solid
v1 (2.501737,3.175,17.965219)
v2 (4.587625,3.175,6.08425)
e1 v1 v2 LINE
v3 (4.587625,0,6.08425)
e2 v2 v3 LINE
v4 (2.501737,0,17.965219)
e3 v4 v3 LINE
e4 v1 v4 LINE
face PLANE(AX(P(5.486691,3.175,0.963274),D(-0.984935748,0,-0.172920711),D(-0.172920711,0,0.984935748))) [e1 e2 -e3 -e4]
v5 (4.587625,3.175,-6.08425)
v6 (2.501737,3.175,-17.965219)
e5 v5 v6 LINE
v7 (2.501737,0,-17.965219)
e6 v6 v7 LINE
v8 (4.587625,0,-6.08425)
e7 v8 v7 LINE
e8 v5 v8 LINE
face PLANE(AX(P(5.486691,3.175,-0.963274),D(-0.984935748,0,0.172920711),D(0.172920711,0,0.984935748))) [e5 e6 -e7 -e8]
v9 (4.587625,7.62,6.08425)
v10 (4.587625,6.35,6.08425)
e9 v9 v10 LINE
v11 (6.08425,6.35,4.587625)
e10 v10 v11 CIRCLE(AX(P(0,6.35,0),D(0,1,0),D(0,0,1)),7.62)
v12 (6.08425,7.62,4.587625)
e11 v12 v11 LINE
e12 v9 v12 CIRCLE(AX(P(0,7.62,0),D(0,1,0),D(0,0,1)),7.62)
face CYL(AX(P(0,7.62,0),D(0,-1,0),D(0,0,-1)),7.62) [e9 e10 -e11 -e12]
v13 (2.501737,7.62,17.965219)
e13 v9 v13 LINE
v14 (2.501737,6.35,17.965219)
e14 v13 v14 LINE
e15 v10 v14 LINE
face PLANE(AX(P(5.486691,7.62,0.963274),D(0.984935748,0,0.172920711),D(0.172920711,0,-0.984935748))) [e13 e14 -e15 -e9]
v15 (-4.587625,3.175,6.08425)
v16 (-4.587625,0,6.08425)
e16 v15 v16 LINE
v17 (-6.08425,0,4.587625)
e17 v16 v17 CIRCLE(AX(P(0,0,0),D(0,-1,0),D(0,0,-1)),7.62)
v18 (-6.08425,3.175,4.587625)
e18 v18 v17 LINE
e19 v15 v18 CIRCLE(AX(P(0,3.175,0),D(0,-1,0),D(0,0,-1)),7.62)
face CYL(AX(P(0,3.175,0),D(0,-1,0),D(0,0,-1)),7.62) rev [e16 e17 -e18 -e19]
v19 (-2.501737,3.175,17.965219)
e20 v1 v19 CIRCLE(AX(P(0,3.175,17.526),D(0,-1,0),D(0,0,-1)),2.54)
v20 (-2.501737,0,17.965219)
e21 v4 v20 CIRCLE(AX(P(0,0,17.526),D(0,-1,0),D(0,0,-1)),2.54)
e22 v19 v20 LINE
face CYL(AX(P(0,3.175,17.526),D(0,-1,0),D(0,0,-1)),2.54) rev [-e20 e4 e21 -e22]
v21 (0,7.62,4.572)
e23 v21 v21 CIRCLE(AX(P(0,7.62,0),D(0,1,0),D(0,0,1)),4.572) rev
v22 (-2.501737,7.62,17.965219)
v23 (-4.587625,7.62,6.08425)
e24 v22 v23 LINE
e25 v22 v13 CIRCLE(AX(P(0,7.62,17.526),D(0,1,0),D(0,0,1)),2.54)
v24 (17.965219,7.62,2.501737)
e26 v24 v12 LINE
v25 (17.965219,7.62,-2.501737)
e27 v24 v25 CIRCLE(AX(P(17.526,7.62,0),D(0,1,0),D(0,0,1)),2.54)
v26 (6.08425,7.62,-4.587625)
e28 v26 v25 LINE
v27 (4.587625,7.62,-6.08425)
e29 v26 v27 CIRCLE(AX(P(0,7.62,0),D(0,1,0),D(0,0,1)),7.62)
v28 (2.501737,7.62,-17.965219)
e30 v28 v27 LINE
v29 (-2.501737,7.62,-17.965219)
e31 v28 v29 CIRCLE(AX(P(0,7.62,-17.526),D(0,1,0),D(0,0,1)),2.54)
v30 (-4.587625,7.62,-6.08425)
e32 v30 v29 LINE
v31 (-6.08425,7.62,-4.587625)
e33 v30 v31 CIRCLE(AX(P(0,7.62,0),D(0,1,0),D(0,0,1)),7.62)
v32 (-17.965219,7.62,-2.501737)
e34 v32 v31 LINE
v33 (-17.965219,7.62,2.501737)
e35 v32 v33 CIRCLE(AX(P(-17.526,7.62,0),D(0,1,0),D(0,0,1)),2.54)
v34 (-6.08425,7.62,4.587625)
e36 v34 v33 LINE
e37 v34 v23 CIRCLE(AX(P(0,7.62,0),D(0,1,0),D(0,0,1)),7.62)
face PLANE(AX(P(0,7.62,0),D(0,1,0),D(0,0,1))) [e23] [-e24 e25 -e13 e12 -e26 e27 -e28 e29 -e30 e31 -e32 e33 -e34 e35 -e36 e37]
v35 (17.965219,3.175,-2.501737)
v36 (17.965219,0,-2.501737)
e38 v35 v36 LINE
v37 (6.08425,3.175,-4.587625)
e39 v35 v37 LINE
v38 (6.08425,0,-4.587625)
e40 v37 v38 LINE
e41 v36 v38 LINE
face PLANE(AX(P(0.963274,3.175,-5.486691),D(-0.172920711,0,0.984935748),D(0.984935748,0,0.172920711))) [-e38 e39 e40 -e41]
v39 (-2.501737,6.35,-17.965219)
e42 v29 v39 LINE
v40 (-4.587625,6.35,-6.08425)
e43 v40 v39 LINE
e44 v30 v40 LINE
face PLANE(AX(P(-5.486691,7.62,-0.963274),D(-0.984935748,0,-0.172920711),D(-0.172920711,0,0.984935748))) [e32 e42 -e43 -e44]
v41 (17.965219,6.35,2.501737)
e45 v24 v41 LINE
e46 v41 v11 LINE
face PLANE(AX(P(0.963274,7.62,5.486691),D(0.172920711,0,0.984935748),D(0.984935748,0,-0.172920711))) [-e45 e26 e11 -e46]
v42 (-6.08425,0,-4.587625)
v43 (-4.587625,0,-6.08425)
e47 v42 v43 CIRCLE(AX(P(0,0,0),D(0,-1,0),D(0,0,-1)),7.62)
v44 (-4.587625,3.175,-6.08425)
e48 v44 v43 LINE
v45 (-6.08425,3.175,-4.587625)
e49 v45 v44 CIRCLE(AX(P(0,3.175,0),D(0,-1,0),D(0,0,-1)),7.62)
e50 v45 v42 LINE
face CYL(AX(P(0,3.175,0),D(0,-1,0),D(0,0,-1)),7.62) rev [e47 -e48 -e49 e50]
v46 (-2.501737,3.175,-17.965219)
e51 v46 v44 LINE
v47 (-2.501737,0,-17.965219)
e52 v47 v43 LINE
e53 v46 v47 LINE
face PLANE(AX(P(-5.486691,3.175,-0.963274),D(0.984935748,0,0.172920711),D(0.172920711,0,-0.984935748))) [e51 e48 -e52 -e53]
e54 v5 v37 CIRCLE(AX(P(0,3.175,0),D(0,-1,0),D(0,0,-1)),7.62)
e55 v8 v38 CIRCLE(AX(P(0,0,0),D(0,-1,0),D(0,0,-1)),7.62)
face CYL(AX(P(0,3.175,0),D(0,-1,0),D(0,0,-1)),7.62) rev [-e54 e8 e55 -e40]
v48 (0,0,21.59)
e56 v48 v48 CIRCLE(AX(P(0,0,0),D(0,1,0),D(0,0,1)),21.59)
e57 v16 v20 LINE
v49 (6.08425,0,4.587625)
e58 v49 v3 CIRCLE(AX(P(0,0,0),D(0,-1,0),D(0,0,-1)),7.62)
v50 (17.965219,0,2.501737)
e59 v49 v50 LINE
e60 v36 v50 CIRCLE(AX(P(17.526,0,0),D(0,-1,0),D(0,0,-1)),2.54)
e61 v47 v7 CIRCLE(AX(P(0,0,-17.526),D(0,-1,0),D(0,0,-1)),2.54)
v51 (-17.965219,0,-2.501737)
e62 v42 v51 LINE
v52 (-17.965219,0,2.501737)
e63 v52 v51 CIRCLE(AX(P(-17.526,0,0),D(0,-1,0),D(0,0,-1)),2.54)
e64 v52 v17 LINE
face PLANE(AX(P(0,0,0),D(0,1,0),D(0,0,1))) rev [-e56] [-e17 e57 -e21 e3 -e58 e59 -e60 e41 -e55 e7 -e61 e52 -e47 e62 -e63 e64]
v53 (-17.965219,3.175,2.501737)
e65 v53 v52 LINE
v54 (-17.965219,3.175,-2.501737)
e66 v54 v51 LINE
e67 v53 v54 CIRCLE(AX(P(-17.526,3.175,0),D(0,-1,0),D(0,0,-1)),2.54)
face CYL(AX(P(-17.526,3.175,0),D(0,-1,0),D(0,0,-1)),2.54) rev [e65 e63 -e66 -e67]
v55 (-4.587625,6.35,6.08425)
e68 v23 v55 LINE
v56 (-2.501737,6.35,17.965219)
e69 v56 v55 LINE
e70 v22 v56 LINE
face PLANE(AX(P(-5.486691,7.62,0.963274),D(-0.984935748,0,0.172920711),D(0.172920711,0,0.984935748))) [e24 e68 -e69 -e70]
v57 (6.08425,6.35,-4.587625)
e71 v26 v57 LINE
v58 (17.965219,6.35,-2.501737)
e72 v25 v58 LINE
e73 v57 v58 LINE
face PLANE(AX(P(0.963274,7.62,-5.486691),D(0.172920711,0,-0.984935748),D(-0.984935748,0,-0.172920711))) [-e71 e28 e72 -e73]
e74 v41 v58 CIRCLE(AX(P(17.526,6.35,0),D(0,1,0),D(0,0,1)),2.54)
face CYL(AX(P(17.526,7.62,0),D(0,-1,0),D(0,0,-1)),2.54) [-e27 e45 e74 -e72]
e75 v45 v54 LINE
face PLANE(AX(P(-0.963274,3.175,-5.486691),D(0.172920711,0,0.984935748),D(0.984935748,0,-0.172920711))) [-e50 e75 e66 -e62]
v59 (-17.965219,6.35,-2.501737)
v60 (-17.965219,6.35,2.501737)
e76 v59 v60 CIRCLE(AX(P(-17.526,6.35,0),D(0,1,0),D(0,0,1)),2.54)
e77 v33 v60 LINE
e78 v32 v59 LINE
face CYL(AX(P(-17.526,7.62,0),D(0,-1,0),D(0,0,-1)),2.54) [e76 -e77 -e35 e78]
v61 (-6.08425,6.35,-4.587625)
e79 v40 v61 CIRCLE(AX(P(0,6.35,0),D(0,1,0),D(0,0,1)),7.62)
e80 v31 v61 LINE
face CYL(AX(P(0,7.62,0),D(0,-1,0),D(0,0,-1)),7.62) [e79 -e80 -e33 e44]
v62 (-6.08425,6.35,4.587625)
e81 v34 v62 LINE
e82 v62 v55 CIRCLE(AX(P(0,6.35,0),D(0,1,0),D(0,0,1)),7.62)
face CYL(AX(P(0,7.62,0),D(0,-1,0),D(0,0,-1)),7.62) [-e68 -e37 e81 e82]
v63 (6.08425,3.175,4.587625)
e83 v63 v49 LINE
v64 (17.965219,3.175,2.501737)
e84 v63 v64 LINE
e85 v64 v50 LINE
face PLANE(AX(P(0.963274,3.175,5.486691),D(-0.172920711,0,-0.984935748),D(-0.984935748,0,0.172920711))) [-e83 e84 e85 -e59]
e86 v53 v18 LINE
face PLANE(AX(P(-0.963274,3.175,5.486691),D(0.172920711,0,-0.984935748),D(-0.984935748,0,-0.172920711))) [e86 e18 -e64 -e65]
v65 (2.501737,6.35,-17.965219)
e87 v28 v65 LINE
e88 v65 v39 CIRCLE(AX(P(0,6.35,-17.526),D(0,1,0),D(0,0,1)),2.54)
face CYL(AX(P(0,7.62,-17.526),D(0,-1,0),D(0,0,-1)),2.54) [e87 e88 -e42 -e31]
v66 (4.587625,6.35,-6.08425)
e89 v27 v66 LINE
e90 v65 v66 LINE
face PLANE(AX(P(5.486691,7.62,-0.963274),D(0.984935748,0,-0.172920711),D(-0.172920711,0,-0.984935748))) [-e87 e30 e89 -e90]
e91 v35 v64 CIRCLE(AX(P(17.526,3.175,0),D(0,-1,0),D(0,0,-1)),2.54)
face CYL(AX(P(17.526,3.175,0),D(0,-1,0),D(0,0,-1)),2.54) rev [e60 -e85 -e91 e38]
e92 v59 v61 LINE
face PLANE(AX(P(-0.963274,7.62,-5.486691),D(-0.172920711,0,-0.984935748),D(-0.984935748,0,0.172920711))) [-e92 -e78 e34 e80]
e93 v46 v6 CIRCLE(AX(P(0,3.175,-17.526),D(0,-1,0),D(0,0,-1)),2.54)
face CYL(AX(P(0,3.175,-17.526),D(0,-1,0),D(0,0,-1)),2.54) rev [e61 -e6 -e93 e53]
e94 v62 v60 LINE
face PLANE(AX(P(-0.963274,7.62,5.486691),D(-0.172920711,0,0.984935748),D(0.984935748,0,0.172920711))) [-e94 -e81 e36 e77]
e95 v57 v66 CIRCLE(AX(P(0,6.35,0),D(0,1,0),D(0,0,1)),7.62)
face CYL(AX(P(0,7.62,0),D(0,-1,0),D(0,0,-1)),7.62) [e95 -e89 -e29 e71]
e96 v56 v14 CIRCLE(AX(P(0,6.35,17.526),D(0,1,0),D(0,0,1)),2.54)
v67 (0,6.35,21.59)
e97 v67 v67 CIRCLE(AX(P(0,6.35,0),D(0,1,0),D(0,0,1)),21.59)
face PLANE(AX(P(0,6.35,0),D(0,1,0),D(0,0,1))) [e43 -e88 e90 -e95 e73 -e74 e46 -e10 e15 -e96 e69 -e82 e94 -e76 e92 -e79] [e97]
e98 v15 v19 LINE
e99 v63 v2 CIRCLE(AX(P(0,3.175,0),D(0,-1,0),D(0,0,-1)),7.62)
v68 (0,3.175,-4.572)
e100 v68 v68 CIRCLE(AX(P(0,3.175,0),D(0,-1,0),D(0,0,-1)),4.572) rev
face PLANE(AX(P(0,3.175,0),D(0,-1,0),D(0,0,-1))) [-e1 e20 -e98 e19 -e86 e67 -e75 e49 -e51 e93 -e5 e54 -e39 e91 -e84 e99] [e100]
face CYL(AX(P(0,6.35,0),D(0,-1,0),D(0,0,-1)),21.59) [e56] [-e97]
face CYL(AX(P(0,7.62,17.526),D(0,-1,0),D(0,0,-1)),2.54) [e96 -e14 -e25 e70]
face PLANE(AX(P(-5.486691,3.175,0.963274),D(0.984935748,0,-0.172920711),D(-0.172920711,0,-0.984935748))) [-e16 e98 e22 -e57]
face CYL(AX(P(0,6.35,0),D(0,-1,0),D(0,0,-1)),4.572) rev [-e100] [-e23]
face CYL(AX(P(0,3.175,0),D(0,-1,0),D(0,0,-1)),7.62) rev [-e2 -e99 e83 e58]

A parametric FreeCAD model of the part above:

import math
import FreeCAD as App
import Part
import Sketcher
Q = App.Units.Quantity

doc = App.newDocument("Part")
body = doc.addObject("PartDesign::Body", "Body")

# Sketch on XZ plane
sketch1 = body.newObject("Sketcher::SketchObject", "Sketch")
sketch1.AttachmentSupport = (doc.getObject("XZ_Plane"), [""])
sketch1.MapMode = "FlatFace"
sketch1.addGeometry(Part.Circle(App.Vector(0, 0, 0), App.Vector(0, 0, 1), 22), False)
sketch1.addConstraint([
    Sketcher.Constraint("Coincident", 0, 3, -1, 1),
    Sketcher.Constraint("Diameter", 0, Q("1.7 in")),
])
pad1 = body.newObject("PartDesign::Pad", "Pad")
pad1.Profile = sketch1
pad1.Length = Q("0.25 in")
pad1.Reversed = True

# Sketch on XZ plane
sketch2 = body.newObject("Sketcher::SketchObject", "Sketch001")
sketch2.AttachmentSupport = (doc.getObject("XZ_Plane"), [""])
sketch2.MapMode = "FlatFace"
sketch2.addGeometry(Part.Circle(App.Vector(0, 0, 0), App.Vector(0, 0, 1), 4.6), False)
sketch2.addConstraint([
    Sketcher.Constraint("Coincident", 0, 3, -1, 1),
    Sketcher.Constraint("Diameter", 0, Q("0.36 in")),
])
pocket1 = body.newObject("PartDesign::Pocket", "Pocket")
pocket1.Profile = sketch2
pocket1.Type = "ThroughAll"

# Sketch on XZ plane
sketch3 = body.newObject("Sketcher::SketchObject", "Sketch002")
sketch3.AttachmentSupport = (doc.getObject("XZ_Plane"), [""])
sketch3.MapMode = "FlatFace"
sketch3.addGeometry([
    Part.LineSegment(App.Vector(-4.6, -6.1, 0), App.Vector(-4.3, -7.6, 0)),  # 0
    Part.LineSegment(App.Vector(-4.3, -7.6, 0), App.Vector(-2.5, -18, 0)),  # 1
    Part.ArcOfCircle(Part.Circle(App.Vector(0, -17.5, 0), App.Vector(0, 0, 1), 2.5), math.radians(-170), math.radians(-10)),  # 2
    Part.LineSegment(App.Vector(2.5, -18, 0), App.Vector(4.3, -7.6, 0)),  # 3
    Part.LineSegment(App.Vector(4.3, -7.6, 0), App.Vector(4.6, -6.1, 0)),  # 4
    Part.ArcOfCircle(Part.Circle(App.Vector(0, 0, 0), App.Vector(0, 0, 1), 7.6), math.radians(-52.98), math.radians(-37.02)),  # 5
    Part.LineSegment(App.Vector(6.1, -4.6, 0), App.Vector(7.6, -4.3, 0)),  # 6
    Part.LineSegment(App.Vector(7.6, -4.3, 0), App.Vector(18, -2.5, 0)),  # 7
    Part.ArcOfCircle(Part.Circle(App.Vector(17.5, 0, 0), App.Vector(0, 0, 1), 2.5), math.radians(-80), math.radians(80)),  # 8
    Part.LineSegment(App.Vector(18, 2.5, 0), App.Vector(7.6, 4.3, 0)),  # 9
    Part.LineSegment(App.Vector(7.6, 4.3, 0), App.Vector(6.1, 4.6, 0)),  # 10
    Part.ArcOfCircle(Part.Circle(App.Vector(0, 0, 0), App.Vector(0, 0, 1), 7.6), math.radians(37.02), math.radians(52.98)),  # 11
    Part.LineSegment(App.Vector(4.6, 6.1, 0), App.Vector(4.3, 7.6, 0)),  # 12
    Part.LineSegment(App.Vector(4.3, 7.6, 0), App.Vector(2.5, 18, 0)),  # 13
    Part.ArcOfCircle(Part.Circle(App.Vector(0, 17.5, 0), App.Vector(0, 0, 1), 2.5), math.radians(10), math.radians(170)),  # 14
    Part.LineSegment(App.Vector(-2.5, 18, 0), App.Vector(-4.3, 7.6, 0)),  # 15
    Part.LineSegment(App.Vector(-4.3, 7.6, 0), App.Vector(-4.6, 6.1, 0)),  # 16
    Part.ArcOfCircle(Part.Circle(App.Vector(0, 0, 0), App.Vector(0, 0, 1), 7.6), math.radians(127.02), math.radians(142.98)),  # 17
    Part.LineSegment(App.Vector(-6.1, 4.6, 0), App.Vector(-7.6, 4.3, 0)),  # 18
    Part.LineSegment(App.Vector(-7.6, 4.3, 0), App.Vector(-18, 2.5, 0)),  # 19
    Part.ArcOfCircle(Part.Circle(App.Vector(-17.5, 0, 0), App.Vector(0, 0, 1), 2.5), math.radians(100), math.radians(260)),  # 20
    Part.LineSegment(App.Vector(-18, -2.5, 0), App.Vector(-7.6, -4.3, 0)),  # 21
    Part.LineSegment(App.Vector(-7.6, -4.3, 0), App.Vector(-6.1, -4.6, 0)),  # 22
    Part.ArcOfCircle(Part.Circle(App.Vector(0, 0, 0), App.Vector(0, 0, 1), 7.6), math.radians(-142.98), math.radians(-127.02)),  # 23
    Part.Circle(App.Vector(0, 0, 0), App.Vector(0, 0, 1), 4.6),  # 24
], False)
sketch3.addConstraint([
    Sketcher.Constraint("Coincident", 0, 2, 1, 1),
    Sketcher.Constraint("Tangent", 1, 2, 2, 1),
    Sketcher.Constraint("Tangent", 2, 2, 3, 1),
    Sketcher.Constraint("Coincident", 3, 2, 4, 1),
    Sketcher.Constraint("Coincident", 4, 2, 5, 1),
    Sketcher.Constraint("Coincident", 5, 2, 6, 1),
    Sketcher.Constraint("Coincident", 6, 2, 7, 1),
    Sketcher.Constraint("Tangent", 7, 2, 8, 1),
    Sketcher.Constraint("Tangent", 8, 2, 9, 1),
    Sketcher.Constraint("Coincident", 9, 2, 10, 1),
    Sketcher.Constraint("Coincident", 10, 2, 11, 1),
    Sketcher.Constraint("Coincident", 11, 2, 12, 1),
    Sketcher.Constraint("Coincident", 12, 2, 13, 1),
    Sketcher.Constraint("Tangent", 13, 2, 14, 1),
    Sketcher.Constraint("Tangent", 14, 2, 15, 1),
    Sketcher.Constraint("Coincident", 15, 2, 16, 1),
    Sketcher.Constraint("Coincident", 16, 2, 17, 1),
    Sketcher.Constraint("Coincident", 17, 2, 18, 1),
    Sketcher.Constraint("Coincident", 18, 2, 19, 1),
    Sketcher.Constraint("Tangent", 19, 2, 20, 1),
    Sketcher.Constraint("Tangent", 20, 2, 21, 1),
    Sketcher.Constraint("Coincident", 21, 2, 22, 1),
    Sketcher.Constraint("Coincident", 22, 2, 23, 1),
    Sketcher.Constraint("Coincident", 23, 2, 0, 1),
    Sketcher.Constraint("Coincident", 5, 3, -1, 1),
    Sketcher.Constraint("Coincident", 11, 3, -1, 1),
    Sketcher.Constraint("Coincident", 17, 3, -1, 1),
    Sketcher.Constraint("Coincident", 23, 3, -1, 1),
    Sketcher.Constraint("Coincident", 24, 3, -1, 1),
    Sketcher.Constraint("Equal", 2, 8),
    Sketcher.Constraint("Equal", 5, 11),
    Sketcher.Constraint("Equal", 8, 14),
    Sketcher.Constraint("Equal", 11, 17),
    Sketcher.Constraint("Equal", 14, 20),
    Sketcher.Constraint("Equal", 17, 23),
    Sketcher.Constraint("Symmetric", 2, 3, 14, 3, -1, 1),
    Sketcher.Constraint("Symmetric", 8, 3, 20, 3, -1, 1),
    Sketcher.Constraint("Symmetric", 0, 2, 12, 2, -1, 1),
    Sketcher.Constraint("Symmetric", 3, 2, 15, 2, -1, 1),
    Sketcher.Constraint("Symmetric", 6, 2, 18, 2, -1, 1),
    Sketcher.Constraint("Symmetric", 9, 2, 21, 2, -1, 1),
    Sketcher.Constraint("Symmetric", 1, 2, 2, 2, -2),
    Sketcher.Constraint("Symmetric", 9, 2, 18, 2, -2),
    Sketcher.Constraint("PointOnObject", 8, 3, -1),
    Sketcher.Constraint("Parallel", 0, 1),
    Sketcher.Constraint("Parallel", 3, 4),
    Sketcher.Constraint("Perpendicular", 1, 6),
    Sketcher.Constraint("Parallel", 6, 7),
    Sketcher.Constraint("Parallel", 9, 10),
    Sketcher.Constraint("Perpendicular", 7, 12),
    Sketcher.Constraint("Parallel", 15, 16),
    Sketcher.Constraint("Perpendicular", 13, 18),
    Sketcher.Constraint("Parallel", 21, 22),
    Sketcher.Constraint("Horizontal", 0, 2, 3, 2),
    Sketcher.Constraint("Equal", 4, 6),
    Sketcher.Constraint("Equal", 3, 7),
    Sketcher.Constraint("Radius", 2, Q("0.1 in")),
    Sketcher.Constraint("Radius", 5, Q("0.3 in")),
    Sketcher.Constraint("Diameter", 24, Q("0.36 in")),
    Sketcher.Constraint("DistanceY", 0, 2, -1, 1, Q("0.3 in")),
    Sketcher.Constraint("DistanceY", 2, 3, -1, 1, Q("0.69 in")),
    Sketcher.Constraint("DistanceX", 0, 2, -1, 1, Q("0.17 in")),
])
pocket2 = body.newObject("PartDesign::Pocket", "Pocket001")
pocket2.Profile = sketch3
pocket2.Length = Q("0.125 in")

# Sketch on XZ plane
sketch4 = body.newObject("Sketcher::SketchObject", "Sketch003")
sketch4.AttachmentSupport = (doc.getObject("XZ_Plane"), [""])
sketch4.MapMode = "FlatFace"
sketch4.AttachmentOffset = App.Placement(App.Vector(0, 0, -0.25 * 25.4), App.Rotation())
sketch4.addGeometry([
    Part.LineSegment(App.Vector(4.3, -7.6, 0), App.Vector(2.5, -18, 0)),  # 0
    Part.ArcOfCircle(Part.Circle(App.Vector(0, -17.5, 0), App.Vector(0, 0, 1), 2.5), math.radians(-170), math.radians(-10)),  # 1
    Part.LineSegment(App.Vector(-2.5, -18, 0), App.Vector(-4.3, -7.6, 0)),  # 2
    Part.LineSegment(App.Vector(-4.3, -7.6, 0), App.Vector(-4.6, -6.1, 0)),  # 3
    Part.ArcOfCircle(Part.Circle(App.Vector(0, 0, 0), App.Vector(0, 0, 1), 7.6), math.radians(-142.98), math.radians(-127.02)),  # 4
    Part.LineSegment(App.Vector(-6.1, -4.6, 0), App.Vector(-7.6, -4.3, 0)),  # 5
    Part.LineSegment(App.Vector(-7.6, -4.3, 0), App.Vector(-18, -2.5, 0)),  # 6
    Part.ArcOfCircle(Part.Circle(App.Vector(-17.5, 0, 0), App.Vector(0, 0, 1), 2.5), math.radians(100), math.radians(260)),  # 7
    Part.LineSegment(App.Vector(-18, 2.5, 0), App.Vector(-7.6, 4.3, 0)),  # 8
    Part.LineSegment(App.Vector(-7.6, 4.3, 0), App.Vector(-6.1, 4.6, 0)),  # 9
    Part.ArcOfCircle(Part.Circle(App.Vector(0, 0, 0), App.Vector(0, 0, 1), 7.6), math.radians(127.02), math.radians(142.98)),  # 10
    Part.LineSegment(App.Vector(-4.6, 6.1, 0), App.Vector(-4.3, 7.6, 0)),  # 11
    Part.LineSegment(App.Vector(-4.3, 7.6, 0), App.Vector(-2.5, 18, 0)),  # 12
    Part.ArcOfCircle(Part.Circle(App.Vector(0, 17.5, 0), App.Vector(0, 0, 1), 2.5), math.radians(10), math.radians(170)),  # 13
    Part.LineSegment(App.Vector(2.5, 18, 0), App.Vector(4.3, 7.6, 0)),  # 14
    Part.LineSegment(App.Vector(4.3, 7.6, 0), App.Vector(4.6, 6.1, 0)),  # 15
    Part.ArcOfCircle(Part.Circle(App.Vector(0, 0, 0), App.Vector(0, 0, 1), 7.6), math.radians(37.02), math.radians(52.98)),  # 16
    Part.LineSegment(App.Vector(6.1, 4.6, 0), App.Vector(7.6, 4.3, 0)),  # 17
    Part.LineSegment(App.Vector(7.6, 4.3, 0), App.Vector(18, 2.5, 0)),  # 18
    Part.ArcOfCircle(Part.Circle(App.Vector(17.5, 0, 0), App.Vector(0, 0, 1), 2.5), math.radians(-80), math.radians(80)),  # 19
    Part.LineSegment(App.Vector(18, -2.5, 0), App.Vector(7.6, -4.3, 0)),  # 20
    Part.LineSegment(App.Vector(7.6, -4.3, 0), App.Vector(6.1, -4.6, 0)),  # 21
    Part.ArcOfCircle(Part.Circle(App.Vector(0, 0, 0), App.Vector(0, 0, 1), 7.6), math.radians(-52.98), math.radians(-37.02)),  # 22
    Part.LineSegment(App.Vector(4.6, -6.1, 0), App.Vector(4.3, -7.6, 0)),  # 23
    Part.Circle(App.Vector(0, 0, 0), App.Vector(0, 0, 1), 4.6),  # 24
], False)
sketch4.addConstraint([
    Sketcher.Constraint("Tangent", 0, 2, 1, 2),
    Sketcher.Constraint("Tangent", 1, 1, 2, 1),
    Sketcher.Constraint("Coincident", 2, 2, 3, 1),
    Sketcher.Constraint("Coincident", 3, 2, 4, 2),
    Sketcher.Constraint("Coincident", 4, 1, 5, 1),
    Sketcher.Constraint("Coincident", 5, 2, 6, 1),
    Sketcher.Constraint("Tangent", 6, 2, 7, 2),
    Sketcher.Constraint("Tangent", 7, 1, 8, 1),
    Sketcher.Constraint("Coincident", 8, 2, 9, 1),
    Sketcher.Constraint("Coincident", 9, 2, 10, 2),
    Sketcher.Constraint("Coincident", 10, 1, 11, 1),
    Sketcher.Constraint("Coincident", 11, 2, 12, 1),
    Sketcher.Constraint("Tangent", 12, 2, 13, 2),
    Sketcher.Constraint("Tangent", 13, 1, 14, 1),
    Sketcher.Constraint("Coincident", 14, 2, 15, 1),
    Sketcher.Constraint("Coincident", 15, 2, 16, 2),
    Sketcher.Constraint("Coincident", 16, 1, 17, 1),
    Sketcher.Constraint("Coincident", 17, 2, 18, 1),
    Sketcher.Constraint("Tangent", 18, 2, 19, 2),
    Sketcher.Constraint("Tangent", 19, 1, 20, 1),
    Sketcher.Constraint("Coincident", 20, 2, 21, 1),
    Sketcher.Constraint("Coincident", 21, 2, 22, 2),
    Sketcher.Constraint("Coincident", 22, 1, 23, 1),
    Sketcher.Constraint("Coincident", 23, 2, 0, 1),
    Sketcher.Constraint("Coincident", 4, 3, -1, 1),
    Sketcher.Constraint("Coincident", 10, 3, -1, 1),
    Sketcher.Constraint("Coincident", 16, 3, -1, 1),
    Sketcher.Constraint("Coincident", 22, 3, -1, 1),
    Sketcher.Constraint("Coincident", 24, 3, -1, 1),
    Sketcher.Constraint("Equal", 1, 7),
    Sketcher.Constraint("Equal", 4, 10),
    Sketcher.Constraint("Equal", 7, 13),
    Sketcher.Constraint("Equal", 10, 16),
    Sketcher.Constraint("Equal", 13, 19),
    Sketcher.Constraint("Equal", 16, 22),
    Sketcher.Constraint("Symmetric", 1, 3, 13, 3, -1, 1),
    Sketcher.Constraint("Symmetric", 7, 3, 19, 3, -1, 1),
    Sketcher.Constraint("Symmetric", 2, 2, 14, 2, -1, 1),
    Sketcher.Constraint("Symmetric", 5, 2, 17, 2, -1, 1),
    Sketcher.Constraint("Symmetric", 8, 2, 20, 2, -1, 1),
    Sketcher.Constraint("Symmetric", 11, 2, 23, 2, -1, 1),
    Sketcher.Constraint("Symmetric", 0, 2, 1, 1, -2),
    Sketcher.Constraint("Symmetric", 8, 2, 17, 2, -2),
    Sketcher.Constraint("PointOnObject", 7, 3, -1),
    Sketcher.Constraint("Parallel", 2, 3),
    Sketcher.Constraint("Perpendicular", 0, 5),
    Sketcher.Constraint("Parallel", 5, 6),
    Sketcher.Constraint("Parallel", 8, 9),
    Sketcher.Constraint("Perpendicular", 6, 11),
    Sketcher.Constraint("Parallel", 14, 15),
    Sketcher.Constraint("Perpendicular", 12, 17),
    Sketcher.Constraint("Parallel", 20, 21),
    Sketcher.Constraint("Perpendicular", 18, 23),
    Sketcher.Constraint("Horizontal", 11, 2, 14, 2),
    Sketcher.Constraint("Equal", 3, 5),
    Sketcher.Constraint("Equal", 2, 6),
    Sketcher.Constraint("Radius", 1, Q("0.1 in")),
    Sketcher.Constraint("Radius", 4, Q("0.3 in")),
    Sketcher.Constraint("Diameter", 24, Q("0.36 in")),
    Sketcher.Constraint("DistanceY", 2, 2, -1, 1, Q("0.3 in")),
    Sketcher.Constraint("DistanceY", 1, 3, -1, 1, Q("0.69 in")),
    Sketcher.Constraint("DistanceX", 2, 2, -1, 1, Q("0.17 in")),
])
pad2 = body.newObject("PartDesign::Pad", "Pad001")
pad2.Profile = sketch4
pad2.Length = Q("0.05 in")
pad2.Reversed = True

doc.recompute()
